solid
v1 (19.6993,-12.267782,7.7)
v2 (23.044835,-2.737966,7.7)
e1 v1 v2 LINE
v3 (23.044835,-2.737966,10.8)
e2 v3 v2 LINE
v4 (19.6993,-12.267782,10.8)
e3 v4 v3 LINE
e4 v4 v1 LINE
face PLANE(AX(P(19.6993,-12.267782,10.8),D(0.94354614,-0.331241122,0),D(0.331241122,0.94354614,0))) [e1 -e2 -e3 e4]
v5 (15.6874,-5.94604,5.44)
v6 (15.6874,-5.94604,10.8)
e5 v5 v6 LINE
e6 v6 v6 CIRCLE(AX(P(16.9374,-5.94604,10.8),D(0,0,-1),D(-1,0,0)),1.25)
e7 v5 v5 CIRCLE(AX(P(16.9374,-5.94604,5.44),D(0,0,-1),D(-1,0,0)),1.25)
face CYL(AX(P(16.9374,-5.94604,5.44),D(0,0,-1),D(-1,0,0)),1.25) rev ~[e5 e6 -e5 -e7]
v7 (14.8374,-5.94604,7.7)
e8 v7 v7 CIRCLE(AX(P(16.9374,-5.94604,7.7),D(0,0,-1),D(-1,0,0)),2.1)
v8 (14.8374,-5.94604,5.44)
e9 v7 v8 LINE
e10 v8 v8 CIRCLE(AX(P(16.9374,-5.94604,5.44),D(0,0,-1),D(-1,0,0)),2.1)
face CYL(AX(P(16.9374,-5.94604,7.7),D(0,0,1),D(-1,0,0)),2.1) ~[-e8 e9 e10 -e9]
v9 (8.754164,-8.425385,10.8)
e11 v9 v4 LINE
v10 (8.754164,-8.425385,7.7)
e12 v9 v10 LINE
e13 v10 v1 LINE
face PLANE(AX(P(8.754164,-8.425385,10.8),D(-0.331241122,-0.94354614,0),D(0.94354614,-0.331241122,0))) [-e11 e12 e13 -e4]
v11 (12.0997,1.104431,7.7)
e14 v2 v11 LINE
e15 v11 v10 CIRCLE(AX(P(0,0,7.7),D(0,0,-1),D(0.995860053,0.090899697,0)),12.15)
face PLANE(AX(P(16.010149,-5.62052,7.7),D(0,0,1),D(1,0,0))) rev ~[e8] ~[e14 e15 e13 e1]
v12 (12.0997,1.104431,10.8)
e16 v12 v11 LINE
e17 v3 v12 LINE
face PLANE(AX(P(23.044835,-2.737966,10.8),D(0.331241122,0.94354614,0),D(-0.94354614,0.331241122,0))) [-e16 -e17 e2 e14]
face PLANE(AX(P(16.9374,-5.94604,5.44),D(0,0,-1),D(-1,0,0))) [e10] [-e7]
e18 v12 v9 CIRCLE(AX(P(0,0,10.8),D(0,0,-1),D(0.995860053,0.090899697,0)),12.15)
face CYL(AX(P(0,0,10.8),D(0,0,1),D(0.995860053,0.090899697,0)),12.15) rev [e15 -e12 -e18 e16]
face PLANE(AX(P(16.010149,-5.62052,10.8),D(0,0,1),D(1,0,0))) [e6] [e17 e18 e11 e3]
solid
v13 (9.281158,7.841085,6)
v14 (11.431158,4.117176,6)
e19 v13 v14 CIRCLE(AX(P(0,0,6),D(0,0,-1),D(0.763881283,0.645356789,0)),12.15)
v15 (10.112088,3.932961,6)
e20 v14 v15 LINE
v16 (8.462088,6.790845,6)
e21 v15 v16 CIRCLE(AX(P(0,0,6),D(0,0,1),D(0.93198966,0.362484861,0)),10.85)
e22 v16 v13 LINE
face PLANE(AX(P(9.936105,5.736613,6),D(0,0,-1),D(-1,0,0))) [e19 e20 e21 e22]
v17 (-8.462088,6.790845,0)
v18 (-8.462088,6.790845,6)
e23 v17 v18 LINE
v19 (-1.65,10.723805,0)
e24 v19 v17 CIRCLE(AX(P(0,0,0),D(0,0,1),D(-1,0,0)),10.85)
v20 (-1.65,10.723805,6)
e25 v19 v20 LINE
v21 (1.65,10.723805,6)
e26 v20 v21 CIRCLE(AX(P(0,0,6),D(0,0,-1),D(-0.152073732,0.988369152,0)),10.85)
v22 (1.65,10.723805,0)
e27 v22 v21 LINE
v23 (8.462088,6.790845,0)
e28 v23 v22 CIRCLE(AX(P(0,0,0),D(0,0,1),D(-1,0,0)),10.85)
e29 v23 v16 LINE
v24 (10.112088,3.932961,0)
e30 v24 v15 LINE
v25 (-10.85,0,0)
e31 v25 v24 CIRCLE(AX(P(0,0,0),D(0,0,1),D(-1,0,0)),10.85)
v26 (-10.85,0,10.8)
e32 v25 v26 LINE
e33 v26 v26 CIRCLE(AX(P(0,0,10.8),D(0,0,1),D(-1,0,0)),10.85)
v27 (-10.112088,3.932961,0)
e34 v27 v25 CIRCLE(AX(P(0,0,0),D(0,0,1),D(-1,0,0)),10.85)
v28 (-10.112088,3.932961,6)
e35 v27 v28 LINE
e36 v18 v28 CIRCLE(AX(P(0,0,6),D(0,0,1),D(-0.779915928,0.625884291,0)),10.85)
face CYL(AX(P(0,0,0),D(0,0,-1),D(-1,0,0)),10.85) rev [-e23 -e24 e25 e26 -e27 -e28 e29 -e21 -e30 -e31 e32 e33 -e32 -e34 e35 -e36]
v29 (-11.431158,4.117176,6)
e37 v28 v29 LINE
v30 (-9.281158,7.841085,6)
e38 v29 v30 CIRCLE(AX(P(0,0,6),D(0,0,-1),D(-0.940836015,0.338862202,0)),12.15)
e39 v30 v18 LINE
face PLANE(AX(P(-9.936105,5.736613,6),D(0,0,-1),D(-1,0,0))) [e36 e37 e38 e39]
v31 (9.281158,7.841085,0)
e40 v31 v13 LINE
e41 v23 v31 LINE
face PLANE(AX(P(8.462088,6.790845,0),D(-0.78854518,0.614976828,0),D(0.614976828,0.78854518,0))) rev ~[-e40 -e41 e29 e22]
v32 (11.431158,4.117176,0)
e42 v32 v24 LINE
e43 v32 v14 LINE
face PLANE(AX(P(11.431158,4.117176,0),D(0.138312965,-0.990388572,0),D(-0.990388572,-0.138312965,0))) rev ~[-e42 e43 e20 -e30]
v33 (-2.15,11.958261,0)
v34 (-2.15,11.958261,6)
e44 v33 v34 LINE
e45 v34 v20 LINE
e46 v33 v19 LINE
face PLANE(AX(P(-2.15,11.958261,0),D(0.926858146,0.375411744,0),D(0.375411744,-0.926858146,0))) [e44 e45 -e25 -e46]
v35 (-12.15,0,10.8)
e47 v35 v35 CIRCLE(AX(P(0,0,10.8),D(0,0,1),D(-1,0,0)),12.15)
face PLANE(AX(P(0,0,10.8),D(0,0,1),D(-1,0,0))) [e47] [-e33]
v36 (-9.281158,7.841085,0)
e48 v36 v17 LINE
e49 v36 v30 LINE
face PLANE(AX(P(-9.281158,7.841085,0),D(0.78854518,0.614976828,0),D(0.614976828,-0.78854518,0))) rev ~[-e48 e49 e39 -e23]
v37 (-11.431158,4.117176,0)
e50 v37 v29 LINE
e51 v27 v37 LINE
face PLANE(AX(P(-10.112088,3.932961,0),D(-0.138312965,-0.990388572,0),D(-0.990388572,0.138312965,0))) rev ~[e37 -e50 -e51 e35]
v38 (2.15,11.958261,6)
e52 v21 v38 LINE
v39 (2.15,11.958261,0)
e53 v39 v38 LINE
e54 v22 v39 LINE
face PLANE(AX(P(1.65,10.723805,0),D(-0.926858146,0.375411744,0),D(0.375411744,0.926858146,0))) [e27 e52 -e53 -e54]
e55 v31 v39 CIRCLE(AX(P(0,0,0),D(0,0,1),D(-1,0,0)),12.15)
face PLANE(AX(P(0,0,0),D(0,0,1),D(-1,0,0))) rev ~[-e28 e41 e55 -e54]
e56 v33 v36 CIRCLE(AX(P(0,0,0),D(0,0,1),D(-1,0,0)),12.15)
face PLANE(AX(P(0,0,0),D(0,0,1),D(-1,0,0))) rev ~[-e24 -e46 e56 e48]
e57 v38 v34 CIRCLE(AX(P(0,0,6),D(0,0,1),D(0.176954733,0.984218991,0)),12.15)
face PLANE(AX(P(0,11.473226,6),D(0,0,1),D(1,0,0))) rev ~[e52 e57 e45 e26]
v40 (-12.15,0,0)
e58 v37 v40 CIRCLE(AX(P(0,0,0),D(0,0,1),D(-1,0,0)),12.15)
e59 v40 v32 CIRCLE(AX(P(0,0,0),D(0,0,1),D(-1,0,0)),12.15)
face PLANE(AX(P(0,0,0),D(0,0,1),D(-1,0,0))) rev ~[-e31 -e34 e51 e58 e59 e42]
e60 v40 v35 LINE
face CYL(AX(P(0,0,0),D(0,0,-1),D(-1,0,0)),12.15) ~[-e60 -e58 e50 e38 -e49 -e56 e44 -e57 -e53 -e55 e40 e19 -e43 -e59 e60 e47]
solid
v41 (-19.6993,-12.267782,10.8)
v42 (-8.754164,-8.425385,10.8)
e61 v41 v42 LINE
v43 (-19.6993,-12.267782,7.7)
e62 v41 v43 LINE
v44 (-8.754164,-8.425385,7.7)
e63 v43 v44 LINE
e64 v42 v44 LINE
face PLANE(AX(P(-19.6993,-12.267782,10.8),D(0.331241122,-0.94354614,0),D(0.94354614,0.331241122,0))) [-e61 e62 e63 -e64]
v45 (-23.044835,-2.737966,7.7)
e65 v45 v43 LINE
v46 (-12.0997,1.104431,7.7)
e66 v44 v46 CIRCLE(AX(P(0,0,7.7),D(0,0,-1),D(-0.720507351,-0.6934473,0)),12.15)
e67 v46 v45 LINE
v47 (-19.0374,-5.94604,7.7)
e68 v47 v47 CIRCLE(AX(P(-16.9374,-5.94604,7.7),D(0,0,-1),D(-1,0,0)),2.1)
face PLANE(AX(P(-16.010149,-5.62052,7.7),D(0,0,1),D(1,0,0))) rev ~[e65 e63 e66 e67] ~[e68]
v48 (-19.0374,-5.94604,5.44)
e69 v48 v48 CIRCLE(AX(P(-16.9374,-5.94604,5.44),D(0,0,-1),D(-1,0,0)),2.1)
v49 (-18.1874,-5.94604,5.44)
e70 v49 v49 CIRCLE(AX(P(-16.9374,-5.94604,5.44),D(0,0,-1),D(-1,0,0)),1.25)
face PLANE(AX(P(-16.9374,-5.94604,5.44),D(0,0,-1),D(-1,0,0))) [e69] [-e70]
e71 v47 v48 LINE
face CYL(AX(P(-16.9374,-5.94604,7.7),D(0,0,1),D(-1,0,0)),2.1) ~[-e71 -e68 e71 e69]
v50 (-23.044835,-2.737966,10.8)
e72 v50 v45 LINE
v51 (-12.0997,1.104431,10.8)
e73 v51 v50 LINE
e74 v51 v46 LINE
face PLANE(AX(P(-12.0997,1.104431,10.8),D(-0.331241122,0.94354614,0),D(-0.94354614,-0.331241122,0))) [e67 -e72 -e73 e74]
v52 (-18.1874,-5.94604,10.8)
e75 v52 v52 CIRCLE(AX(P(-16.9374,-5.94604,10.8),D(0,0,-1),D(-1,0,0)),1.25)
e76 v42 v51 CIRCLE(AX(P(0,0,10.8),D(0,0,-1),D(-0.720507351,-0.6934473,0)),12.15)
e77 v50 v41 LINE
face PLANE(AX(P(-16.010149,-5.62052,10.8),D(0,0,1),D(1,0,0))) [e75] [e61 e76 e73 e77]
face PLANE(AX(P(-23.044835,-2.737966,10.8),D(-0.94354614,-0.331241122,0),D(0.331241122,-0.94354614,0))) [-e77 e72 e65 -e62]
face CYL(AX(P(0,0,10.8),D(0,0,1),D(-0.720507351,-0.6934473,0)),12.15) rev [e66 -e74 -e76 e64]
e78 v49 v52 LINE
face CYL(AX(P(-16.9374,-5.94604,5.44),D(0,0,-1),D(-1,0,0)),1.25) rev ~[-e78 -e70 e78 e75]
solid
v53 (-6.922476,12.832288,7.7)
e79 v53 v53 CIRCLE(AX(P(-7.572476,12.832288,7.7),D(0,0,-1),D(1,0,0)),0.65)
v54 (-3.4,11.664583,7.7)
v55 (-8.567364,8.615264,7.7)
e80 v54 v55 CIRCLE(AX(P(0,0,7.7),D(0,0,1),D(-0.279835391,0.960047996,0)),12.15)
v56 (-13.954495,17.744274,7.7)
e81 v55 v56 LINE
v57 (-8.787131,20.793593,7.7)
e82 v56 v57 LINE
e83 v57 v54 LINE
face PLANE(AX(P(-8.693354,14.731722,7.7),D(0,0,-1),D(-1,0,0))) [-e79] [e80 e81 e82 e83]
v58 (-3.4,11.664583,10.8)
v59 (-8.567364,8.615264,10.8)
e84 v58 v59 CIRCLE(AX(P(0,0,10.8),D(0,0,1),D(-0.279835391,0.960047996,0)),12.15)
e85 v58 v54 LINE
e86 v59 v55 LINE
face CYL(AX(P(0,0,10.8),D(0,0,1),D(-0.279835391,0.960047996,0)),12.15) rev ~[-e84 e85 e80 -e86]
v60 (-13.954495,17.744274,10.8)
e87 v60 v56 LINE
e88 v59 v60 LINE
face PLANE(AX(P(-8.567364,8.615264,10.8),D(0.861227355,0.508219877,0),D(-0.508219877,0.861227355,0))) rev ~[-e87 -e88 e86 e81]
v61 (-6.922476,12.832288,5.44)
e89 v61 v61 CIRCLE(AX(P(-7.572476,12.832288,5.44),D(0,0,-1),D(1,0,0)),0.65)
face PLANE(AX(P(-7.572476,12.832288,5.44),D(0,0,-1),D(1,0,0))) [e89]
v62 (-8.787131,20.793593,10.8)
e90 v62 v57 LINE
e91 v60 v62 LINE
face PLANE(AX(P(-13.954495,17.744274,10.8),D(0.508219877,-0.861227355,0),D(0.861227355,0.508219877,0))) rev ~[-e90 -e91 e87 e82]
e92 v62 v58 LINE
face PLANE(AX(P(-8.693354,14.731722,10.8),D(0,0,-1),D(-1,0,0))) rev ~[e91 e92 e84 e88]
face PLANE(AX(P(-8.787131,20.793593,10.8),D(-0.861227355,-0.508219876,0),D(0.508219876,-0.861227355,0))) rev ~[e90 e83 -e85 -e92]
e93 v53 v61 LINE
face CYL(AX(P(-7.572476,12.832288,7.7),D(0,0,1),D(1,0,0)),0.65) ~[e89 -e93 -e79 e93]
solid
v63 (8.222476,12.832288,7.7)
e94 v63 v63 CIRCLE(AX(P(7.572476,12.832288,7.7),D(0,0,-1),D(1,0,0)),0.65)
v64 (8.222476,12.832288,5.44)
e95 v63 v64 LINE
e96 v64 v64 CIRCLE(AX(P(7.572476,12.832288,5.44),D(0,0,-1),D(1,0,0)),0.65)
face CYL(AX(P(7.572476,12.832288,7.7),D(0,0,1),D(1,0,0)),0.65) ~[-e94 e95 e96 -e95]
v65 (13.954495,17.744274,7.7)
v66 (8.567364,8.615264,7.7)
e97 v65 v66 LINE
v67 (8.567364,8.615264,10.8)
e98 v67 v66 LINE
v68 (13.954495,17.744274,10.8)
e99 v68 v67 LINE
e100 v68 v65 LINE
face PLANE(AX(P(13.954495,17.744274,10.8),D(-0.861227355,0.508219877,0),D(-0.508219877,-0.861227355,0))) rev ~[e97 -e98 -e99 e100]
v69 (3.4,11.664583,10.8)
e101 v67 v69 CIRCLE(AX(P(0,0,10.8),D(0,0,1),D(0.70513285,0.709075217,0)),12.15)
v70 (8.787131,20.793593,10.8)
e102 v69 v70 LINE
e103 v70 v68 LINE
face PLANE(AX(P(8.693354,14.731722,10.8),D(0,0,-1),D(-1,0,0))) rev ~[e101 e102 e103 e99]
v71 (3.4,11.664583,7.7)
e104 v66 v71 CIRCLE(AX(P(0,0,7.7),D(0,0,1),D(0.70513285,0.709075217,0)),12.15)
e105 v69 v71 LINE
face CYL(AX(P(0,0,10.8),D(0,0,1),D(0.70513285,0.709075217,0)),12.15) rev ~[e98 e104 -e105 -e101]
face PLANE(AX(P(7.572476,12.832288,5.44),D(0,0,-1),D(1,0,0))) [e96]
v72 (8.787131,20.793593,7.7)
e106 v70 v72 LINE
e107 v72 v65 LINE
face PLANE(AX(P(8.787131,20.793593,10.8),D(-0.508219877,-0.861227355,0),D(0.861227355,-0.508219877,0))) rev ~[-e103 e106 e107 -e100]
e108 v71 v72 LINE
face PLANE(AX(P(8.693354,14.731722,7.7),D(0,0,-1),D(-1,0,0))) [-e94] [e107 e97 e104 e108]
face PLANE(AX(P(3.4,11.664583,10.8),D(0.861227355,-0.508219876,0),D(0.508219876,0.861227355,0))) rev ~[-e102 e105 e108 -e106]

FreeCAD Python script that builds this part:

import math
import FreeCAD as App
import Part
import Sketcher
Q = App.Units.Quantity

doc = App.newDocument("Part")
body = doc.addObject("PartDesign::Body", "Body")

sketch1 = body.newObject("Sketcher::SketchObject", "Sketch")
sketch1.AttachmentSupport = (doc.getObject("XY_Plane"), [""])
sketch1.MapMode = "FlatFace"
sketch1.addGeometry([
    Part.Circle(App.Vector(0, 0, 0), App.Vector(0, 0, 1), 12),
    Part.Circle(App.Vector(0, 0, 0), App.Vector(0, 0, 1), 11),
], False)
sketch1.addConstraint([
    Sketcher.Constraint("Coincident", 0, 3, -1, 1),
    Sketcher.Constraint("Coincident", 1, 3, -1, 1),
    Sketcher.Constraint("Diameter", 0, Q("24.3 mm")),
    Sketcher.Constraint("Diameter", 1, Q("21.7 mm")),
])
pad1 = body.newObject("PartDesign::Pad", "Pad")
pad1.Profile = sketch1
pad1.Length = 10.8

sketch2 = body.newObject("Sketcher::SketchObject", "Sketch001")
sketch2.AttachmentSupport = (doc.getObject("XY_Plane"), [""])
sketch2.MapMode = "FlatFace"
sketch2.addGeometry([
    Part.LineSegment(App.Vector(1.6, 10.7, 0), App.Vector(2.1, 12, 0)),
    Part.ArcOfCircle(Part.Circle(App.Vector(0, 0, 0), App.Vector(0, 0, 1), 12.1), math.radians(80), math.radians(100)),
    Part.LineSegment(App.Vector(-2.1, 12, 0), App.Vector(-1.6, 10.7, 0)),
    Part.ArcOfCircle(Part.Circle(App.Vector(0, 0, 0), App.Vector(0, 0, 1), 10.9), math.radians(81.25), math.radians(98.75)),
    Part.LineSegment(App.Vector(9.3, 7.8, 0), App.Vector(8.5, 6.8, 0)),
    Part.ArcOfCircle(Part.Circle(App.Vector(0, 0, 0), App.Vector(0, 0, 1), 10.9), math.radians(21.25), math.radians(38.75)),
    Part.LineSegment(App.Vector(10.1, 3.9, 0), App.Vector(11.4, 4.1, 0)),
    Part.ArcOfCircle(Part.Circle(App.Vector(0, 0, 0), App.Vector(0, 0, 1), 12.2), math.radians(20), math.radians(40)),
    Part.LineSegment(App.Vector(-11.4, 4.1, 0), App.Vector(-10.1, 3.9, 0)),
    Part.ArcOfCircle(Part.Circle(App.Vector(0, 0, 0), App.Vector(0, 0, 1), 10.9), math.radians(141.25), math.radians(158.75)),
    Part.LineSegment(App.Vector(-8.5, 6.8, 0), App.Vector(-9.3, 7.8, 0)),
    Part.ArcOfCircle(Part.Circle(App.Vector(0, 0, 0), App.Vector(0, 0, 1), 12.2), math.radians(140), math.radians(160)),
], False)
sketch2.addConstraint([
    Sketcher.Constraint("Coincident", 0, 2, 1, 1),
    Sketcher.Constraint("Coincident", 1, 2, 2, 1),
    Sketcher.Constraint("Coincident", 2, 2, 3, 2),
    Sketcher.Constraint("Coincident", 3, 1, 0, 1),
    Sketcher.Constraint("Coincident", 4, 2, 5, 2),
    Sketcher.Constraint("Coincident", 5, 1, 6, 1),
    Sketcher.Constraint("Coincident", 6, 2, 7, 1),
    Sketcher.Constraint("Coincident", 7, 2, 4, 1),
    Sketcher.Constraint("Coincident", 8, 2, 9, 2),
    Sketcher.Constraint("Coincident", 9, 1, 10, 1),
    Sketcher.Constraint("Coincident", 10, 2, 11, 1),
    Sketcher.Constraint("Coincident", 11, 2, 8, 1),
    Sketcher.Constraint("Coincident", 1, 3, -1, 1),
    Sketcher.Constraint("Coincident", 3, 3, -1, 1),
    Sketcher.Constraint("Coincident", 5, 3, -1, 1),
    Sketcher.Constraint("Coincident", 7, 3, -1, 1),
    Sketcher.Constraint("Coincident", 9, 3, -1, 1),
    Sketcher.Constraint("Coincident", 11, 3, -1, 1),
    Sketcher.Constraint("Equal", 3, 5),
    Sketcher.Constraint("Equal", 1, 7),
    Sketcher.Constraint("Equal", 5, 9),
    Sketcher.Constraint("Equal", 7, 11),
    Sketcher.Constraint("Horizontal", 0, 2, 1, 2),
    Sketcher.Constraint("Horizontal", 2, 2, 3, 1),
    Sketcher.Constraint("Horizontal", 5, 1, 8, 2),
    Sketcher.Constraint("Horizontal", 4, 2, 9, 1),
    Sketcher.Constraint("Horizontal", 7, 2, 10, 2),
    Sketcher.Constraint("Horizontal", 6, 2, 11, 2),
    Sketcher.Constraint("Equal", 2, 4),
    Sketcher.Constraint("Equal", 4, 6),
    Sketcher.Constraint("Radius", 1, Q("12.15 mm")),
    Sketcher.Constraint("Radius", 3, Q("10.85 mm")),
    Sketcher.Constraint("DistanceX", 1, 2, 0, 2, Q("4.3 mm")),
    Sketcher.Constraint("DistanceX", 1, 2, 2, 2, Q("0.5 mm")),
    Sketcher.Constraint("DistanceX", 4, 2, 5, 1, Q("1.65 mm")),
    Sketcher.Constraint("DistanceX", 11, 2, 10, 2, Q("2.15 mm")),
])
pocket1 = body.newObject("PartDesign::Pocket", "Pocket")
pocket1.Profile = sketch2
pocket1.Length = 6
pocket1.Reversed = True
body2 = doc.addObject("PartDesign::Body", "Body001")

sketch3 = body2.newObject("Sketcher::SketchObject", "Sketch002")
sketch3.AttachmentSupport = (doc.getObject("XY_Plane001"), [""])
sketch3.MapMode = "FlatFace"
sketch3.AttachmentOffset = App.Placement(App.Vector(0, 0, 10.8), App.Rotation())
sketch3.addGeometry([
    Part.LineSegment(App.Vector(9, 21, 0), App.Vector(3, 12, 0)),
    Part.ArcOfCircle(Part.Circle(App.Vector(0, 0, 0), App.Vector(0, 0, 1), 12), math.radians(45), math.radians(74)),
    Part.LineSegment(App.Vector(9, 9, 0), App.Vector(14, 18, 0)),
    Part.LineSegment(App.Vector(14, 18, 0), App.Vector(9, 21, 0)),
], False)
sketch3.addConstraint([
    Sketcher.Constraint("Coincident", 0, 2, 1, 2),
    Sketcher.Constraint("Coincident", 1, 1, 2, 1),
    Sketcher.Constraint("Coincident", 2, 2, 3, 1),
    Sketcher.Constraint("Coincident", 3, 2, 0, 1),
    Sketcher.Constraint("Coincident", 1, 3, -1, 1),
    Sketcher.Constraint("Parallel", 0, 2),
    Sketcher.Constraint("Perpendicular", 2, 3),
    Sketcher.Constraint("Equal", 0, 2),
    Sketcher.Constraint("Radius", 1, Q("12.15 mm")),
    Sketcher.Constraint("Distance", 3, Q("6 mm")),
    Sketcher.Constraint("Distance", 0, Q("10.6 mm")),
    Sketcher.Constraint("DistanceX", -1, 1, 0, 2, Q("3.4 mm")),
])
pad2 = body2.newObject("PartDesign::Pad", "Pad001")
pad2.Profile = sketch3
pad2.Length = 3.1
pad2.Reversed = True
body3 = doc.addObject("PartDesign::Body", "Body002")

sketch4 = body3.newObject("Sketcher::SketchObject", "Sketch003")
sketch4.AttachmentSupport = (doc.getObject("XY_Plane002"), [""])
sketch4.MapMode = "FlatFace"
sketch4.AttachmentOffset = App.Placement(App.Vector(0, 0, 10.8), App.Rotation())
sketch4.addGeometry([
    Part.LineSegment(App.Vector(-14, 18, 0), App.Vector(-9, 9, 0)),
    Part.ArcOfCircle(Part.Circle(App.Vector(0, 0, 0), App.Vector(0, 0, 1), 12), math.radians(106), math.radians(135)),
    Part.LineSegment(App.Vector(-3, 12, 0), App.Vector(-9, 21, 0)),
    Part.LineSegment(App.Vector(-9, 21, 0), App.Vector(-14, 18, 0)),
], False)
sketch4.addConstraint([
    Sketcher.Constraint("Coincident", 0, 2, 1, 2),
    Sketcher.Constraint("Coincident", 1, 1, 2, 1),
    Sketcher.Constraint("Coincident", 2, 2, 3, 1),
    Sketcher.Constraint("Coincident", 3, 2, 0, 1),
    Sketcher.Constraint("Coincident", 1, 3, -1, 1),
    Sketcher.Constraint("Parallel", 0, 2),
    Sketcher.Constraint("Perpendicular", 2, 3),
    Sketcher.Constraint("Equal", 0, 2),
    Sketcher.Constraint("Radius", 1, Q("12.15 mm")),
    Sketcher.Constraint("Distance", 3, Q("6 mm")),
    Sketcher.Constraint("Distance", 0, Q("10.6 mm")),
    Sketcher.Constraint("DistanceX", 1, 1, -1, 1, Q("3.4 mm")),
])
pad3 = body3.newObject("PartDesign::Pad", "Pad002")
pad3.Profile = sketch4
pad3.Length = 3.1
pad3.Reversed = True
body4 = doc.addObject("PartDesign::Body", "Body003")

sketch5 = body4.newObject("Sketcher::SketchObject", "Sketch004")
sketch5.AttachmentSupport = (doc.getObject("XY_Plane003"), [""])
sketch5.MapMode = "FlatFace"
sketch5.AttachmentOffset = App.Placement(App.Vector(0, 0, 10.8), App.Rotation())
sketch5.addGeometry([
    Part.LineSegment(App.Vector(9, -8, 0), App.Vector(20, -12, 0)),
    Part.LineSegment(App.Vector(20, -12, 0), App.Vector(23, -3, 0)),
    Part.LineSegment(App.Vector(23, -3, 0), App.Vector(12, 1, 0)),
    Part.ArcOfCircle(Part.Circle(App.Vector(0, 0, 0), App.Vector(0, 0, 1), 12), math.radians(-44), math.radians(5)),
], False)
sketch5.addConstraint([
    Sketcher.Constraint("Coincident", 0, 2, 1, 1),
    Sketcher.Constraint("Coincident", 1, 2, 2, 1),
    Sketcher.Constraint("Coincident", 2, 2, 3, 2),
    Sketcher.Constraint("Coincident", 3, 1, 0, 1),
    Sketcher.Constraint("Coincident", 3, 3, -1, 1),
    Sketcher.Constraint("Perpendicular", 0, 1),
    Sketcher.Constraint("Perpendicular", 1, 2),
    Sketcher.Constraint("Equal", 0, 2),
    Sketcher.Constraint("Radius", 3, Q("12.15 mm")),
    Sketcher.Constraint("Distance", 0, Q("11.6 mm")),
    Sketcher.Constraint("Distance", 1, Q("10.1 mm")),
    Sketcher.Constraint("DistanceX", -1, 1, 0, 2, Q("19.6993 mm")),
])
pad4 = body4.newObject("PartDesign::Pad", "Pad003")
pad4.Profile = sketch5
pad4.Length = 3.1
pad4.Reversed = True
body5 = doc.addObject("PartDesign::Body", "Body004")

sketch6 = body5.newObject("Sketcher::SketchObject", "Sketch005")
sketch6.AttachmentSupport = (doc.getObject("XY_Plane004"), [""])
sketch6.MapMode = "FlatFace"
sketch6.AttachmentOffset = App.Placement(App.Vector(0, 0, 10.8), App.Rotation())
sketch6.addGeometry([
    Part.LineSegment(App.Vector(-12, 1, 0), App.Vector(-23, -3, 0)),
    Part.LineSegment(App.Vector(-23, -3, 0), App.Vector(-20, -12, 0)),
    Part.LineSegment(App.Vector(-20, -12, 0), App.Vector(-9, -8, 0)),
    Part.ArcOfCircle(Part.Circle(App.Vector(0, 0, 0), App.Vector(0, 0, 1), 12), math.radians(175), math.radians(224)),
], False)
sketch6.addConstraint([
    Sketcher.Constraint("Coincident", 0, 2, 1, 1),
    Sketcher.Constraint("Coincident", 1, 2, 2, 1),
    Sketcher.Constraint("Coincident", 2, 2, 3, 2),
    Sketcher.Constraint("Coincident", 3, 1, 0, 1),
    Sketcher.Constraint("Coincident", 3, 3, -1, 1),
    Sketcher.Constraint("Perpendicular", 0, 1),
    Sketcher.Constraint("Perpendicular", 1, 2),
    Sketcher.Constraint("Equal", 0, 2),
    Sketcher.Constraint("Radius", 3, Q("12.15 mm")),
    Sketcher.Constraint("Distance", 0, Q("11.6 mm")),
    Sketcher.Constraint("Distance", 1, Q("10.1 mm")),
    Sketcher.Constraint("DistanceX", 1, 2, -1, 1, Q("19.6993 mm")),
])
pad5 = body5.newObject("PartDesign::Pad", "Pad004")
pad5.Profile = sketch6
pad5.Length = 3.1
pad5.Reversed = True
body2.AllowCompound = True
doc.recompute()

boolean = body2.newObject("PartDesign::Boolean", "Boolean")
boolean.Type = "Fuse"
boolean.addObjects([body3])
doc.recompute()

boolean2 = body2.newObject("PartDesign::Boolean", "Boolean001")
boolean2.Type = "Fuse"
boolean2.addObjects([body4])
doc.recompute()

boolean3 = body2.newObject("PartDesign::Boolean", "Boolean002")
boolean3.Type = "Fuse"
boolean3.addObjects([body5])

sketch7 = body2.newObject("Sketcher::SketchObject", "Sketch006")
sketch7.AttachmentSupport = (doc.getObject("XY_Plane001"), [""])
sketch7.MapMode = "FlatFace"
sketch7.AttachmentOffset = App.Placement(App.Vector(0, 0, 7.7), App.Rotation())
sketch7.addGeometry([
    Part.Circle(App.Vector(-7.6, 12.8, 0), App.Vector(0, 0, 1), 0.7),
    Part.Circle(App.Vector(7.6, 12.8, 0), App.Vector(0, 0, 1), 0.7),
    Part.Circle(App.Vector(-16.9, -5.9, 0), App.Vector(0, 0, 1), 2.1),
    Part.Circle(App.Vector(16.9, -5.9, 0), App.Vector(0, 0, 1), 2.1),
], False)
sketch7.addConstraint([
    Sketcher.Constraint("Equal", 0, 1),
    Sketcher.Constraint("Equal", 2, 3),
    Sketcher.Constraint("Symmetric", 0, 3, 1, 3, -2),
    Sketcher.Constraint("Symmetric", 2, 3, 3, 3, -2),
    Sketcher.Constraint("Diameter", 0, Q("1.3 mm")),
    Sketcher.Constraint("Diameter", 2, Q("4.2 mm")),
    Sketcher.Constraint("DistanceX", 2, 3, -1, 1, Q("16.9374 mm")),
    Sketcher.Constraint("DistanceY", 2, 3, -1, 1, Q("5.94604 mm")),
    Sketcher.Constraint("DistanceY", 2, 3, 0, 3, Q("18.778328 mm")),
    Sketcher.Constraint("DistanceX", 0, 3, -1, 1, Q("7.572476 mm")),
])
pad6 = body2.newObject("PartDesign::Pad", "Pad005")
pad6.Profile = sketch7
pad6.Length = 2.26
pad6.Reversed = True

sketch8 = body2.newObject("Sketcher::SketchObject", "Sketch007")
sketch8.AttachmentSupport = (doc.getObject("XY_Plane001"), [""])
sketch8.MapMode = "FlatFace"
sketch8.AttachmentOffset = App.Placement(App.Vector(0, 0, 5.44), App.Rotation())
sketch8.addGeometry([
    Part.Circle(App.Vector(-16.9, -5.9, 0), App.Vector(0, 0, 1), 1.2),
    Part.Circle(App.Vector(16.9, -5.9, 0), App.Vector(0, 0, 1), 1.2),
], False)
sketch8.addConstraint([
    Sketcher.Constraint("Equal", 0, 1),
    Sketcher.Constraint("Symmetric", 0, 3, 1, 3, -2),
    Sketcher.Constraint("Diameter", 0, Q("2.5 mm")),
    Sketcher.Constraint("DistanceX", 0, 3, -1, 1, Q("16.9374 mm")),
    Sketcher.Constraint("DistanceY", 0, 3, -1, 1, Q("5.94604 mm")),
])
pocket2 = body2.newObject("PartDesign::Pocket", "Pocket001")
pocket2.Profile = sketch8
pocket2.Length = 5.36
pocket2.Reversed = True

doc.recompute()
